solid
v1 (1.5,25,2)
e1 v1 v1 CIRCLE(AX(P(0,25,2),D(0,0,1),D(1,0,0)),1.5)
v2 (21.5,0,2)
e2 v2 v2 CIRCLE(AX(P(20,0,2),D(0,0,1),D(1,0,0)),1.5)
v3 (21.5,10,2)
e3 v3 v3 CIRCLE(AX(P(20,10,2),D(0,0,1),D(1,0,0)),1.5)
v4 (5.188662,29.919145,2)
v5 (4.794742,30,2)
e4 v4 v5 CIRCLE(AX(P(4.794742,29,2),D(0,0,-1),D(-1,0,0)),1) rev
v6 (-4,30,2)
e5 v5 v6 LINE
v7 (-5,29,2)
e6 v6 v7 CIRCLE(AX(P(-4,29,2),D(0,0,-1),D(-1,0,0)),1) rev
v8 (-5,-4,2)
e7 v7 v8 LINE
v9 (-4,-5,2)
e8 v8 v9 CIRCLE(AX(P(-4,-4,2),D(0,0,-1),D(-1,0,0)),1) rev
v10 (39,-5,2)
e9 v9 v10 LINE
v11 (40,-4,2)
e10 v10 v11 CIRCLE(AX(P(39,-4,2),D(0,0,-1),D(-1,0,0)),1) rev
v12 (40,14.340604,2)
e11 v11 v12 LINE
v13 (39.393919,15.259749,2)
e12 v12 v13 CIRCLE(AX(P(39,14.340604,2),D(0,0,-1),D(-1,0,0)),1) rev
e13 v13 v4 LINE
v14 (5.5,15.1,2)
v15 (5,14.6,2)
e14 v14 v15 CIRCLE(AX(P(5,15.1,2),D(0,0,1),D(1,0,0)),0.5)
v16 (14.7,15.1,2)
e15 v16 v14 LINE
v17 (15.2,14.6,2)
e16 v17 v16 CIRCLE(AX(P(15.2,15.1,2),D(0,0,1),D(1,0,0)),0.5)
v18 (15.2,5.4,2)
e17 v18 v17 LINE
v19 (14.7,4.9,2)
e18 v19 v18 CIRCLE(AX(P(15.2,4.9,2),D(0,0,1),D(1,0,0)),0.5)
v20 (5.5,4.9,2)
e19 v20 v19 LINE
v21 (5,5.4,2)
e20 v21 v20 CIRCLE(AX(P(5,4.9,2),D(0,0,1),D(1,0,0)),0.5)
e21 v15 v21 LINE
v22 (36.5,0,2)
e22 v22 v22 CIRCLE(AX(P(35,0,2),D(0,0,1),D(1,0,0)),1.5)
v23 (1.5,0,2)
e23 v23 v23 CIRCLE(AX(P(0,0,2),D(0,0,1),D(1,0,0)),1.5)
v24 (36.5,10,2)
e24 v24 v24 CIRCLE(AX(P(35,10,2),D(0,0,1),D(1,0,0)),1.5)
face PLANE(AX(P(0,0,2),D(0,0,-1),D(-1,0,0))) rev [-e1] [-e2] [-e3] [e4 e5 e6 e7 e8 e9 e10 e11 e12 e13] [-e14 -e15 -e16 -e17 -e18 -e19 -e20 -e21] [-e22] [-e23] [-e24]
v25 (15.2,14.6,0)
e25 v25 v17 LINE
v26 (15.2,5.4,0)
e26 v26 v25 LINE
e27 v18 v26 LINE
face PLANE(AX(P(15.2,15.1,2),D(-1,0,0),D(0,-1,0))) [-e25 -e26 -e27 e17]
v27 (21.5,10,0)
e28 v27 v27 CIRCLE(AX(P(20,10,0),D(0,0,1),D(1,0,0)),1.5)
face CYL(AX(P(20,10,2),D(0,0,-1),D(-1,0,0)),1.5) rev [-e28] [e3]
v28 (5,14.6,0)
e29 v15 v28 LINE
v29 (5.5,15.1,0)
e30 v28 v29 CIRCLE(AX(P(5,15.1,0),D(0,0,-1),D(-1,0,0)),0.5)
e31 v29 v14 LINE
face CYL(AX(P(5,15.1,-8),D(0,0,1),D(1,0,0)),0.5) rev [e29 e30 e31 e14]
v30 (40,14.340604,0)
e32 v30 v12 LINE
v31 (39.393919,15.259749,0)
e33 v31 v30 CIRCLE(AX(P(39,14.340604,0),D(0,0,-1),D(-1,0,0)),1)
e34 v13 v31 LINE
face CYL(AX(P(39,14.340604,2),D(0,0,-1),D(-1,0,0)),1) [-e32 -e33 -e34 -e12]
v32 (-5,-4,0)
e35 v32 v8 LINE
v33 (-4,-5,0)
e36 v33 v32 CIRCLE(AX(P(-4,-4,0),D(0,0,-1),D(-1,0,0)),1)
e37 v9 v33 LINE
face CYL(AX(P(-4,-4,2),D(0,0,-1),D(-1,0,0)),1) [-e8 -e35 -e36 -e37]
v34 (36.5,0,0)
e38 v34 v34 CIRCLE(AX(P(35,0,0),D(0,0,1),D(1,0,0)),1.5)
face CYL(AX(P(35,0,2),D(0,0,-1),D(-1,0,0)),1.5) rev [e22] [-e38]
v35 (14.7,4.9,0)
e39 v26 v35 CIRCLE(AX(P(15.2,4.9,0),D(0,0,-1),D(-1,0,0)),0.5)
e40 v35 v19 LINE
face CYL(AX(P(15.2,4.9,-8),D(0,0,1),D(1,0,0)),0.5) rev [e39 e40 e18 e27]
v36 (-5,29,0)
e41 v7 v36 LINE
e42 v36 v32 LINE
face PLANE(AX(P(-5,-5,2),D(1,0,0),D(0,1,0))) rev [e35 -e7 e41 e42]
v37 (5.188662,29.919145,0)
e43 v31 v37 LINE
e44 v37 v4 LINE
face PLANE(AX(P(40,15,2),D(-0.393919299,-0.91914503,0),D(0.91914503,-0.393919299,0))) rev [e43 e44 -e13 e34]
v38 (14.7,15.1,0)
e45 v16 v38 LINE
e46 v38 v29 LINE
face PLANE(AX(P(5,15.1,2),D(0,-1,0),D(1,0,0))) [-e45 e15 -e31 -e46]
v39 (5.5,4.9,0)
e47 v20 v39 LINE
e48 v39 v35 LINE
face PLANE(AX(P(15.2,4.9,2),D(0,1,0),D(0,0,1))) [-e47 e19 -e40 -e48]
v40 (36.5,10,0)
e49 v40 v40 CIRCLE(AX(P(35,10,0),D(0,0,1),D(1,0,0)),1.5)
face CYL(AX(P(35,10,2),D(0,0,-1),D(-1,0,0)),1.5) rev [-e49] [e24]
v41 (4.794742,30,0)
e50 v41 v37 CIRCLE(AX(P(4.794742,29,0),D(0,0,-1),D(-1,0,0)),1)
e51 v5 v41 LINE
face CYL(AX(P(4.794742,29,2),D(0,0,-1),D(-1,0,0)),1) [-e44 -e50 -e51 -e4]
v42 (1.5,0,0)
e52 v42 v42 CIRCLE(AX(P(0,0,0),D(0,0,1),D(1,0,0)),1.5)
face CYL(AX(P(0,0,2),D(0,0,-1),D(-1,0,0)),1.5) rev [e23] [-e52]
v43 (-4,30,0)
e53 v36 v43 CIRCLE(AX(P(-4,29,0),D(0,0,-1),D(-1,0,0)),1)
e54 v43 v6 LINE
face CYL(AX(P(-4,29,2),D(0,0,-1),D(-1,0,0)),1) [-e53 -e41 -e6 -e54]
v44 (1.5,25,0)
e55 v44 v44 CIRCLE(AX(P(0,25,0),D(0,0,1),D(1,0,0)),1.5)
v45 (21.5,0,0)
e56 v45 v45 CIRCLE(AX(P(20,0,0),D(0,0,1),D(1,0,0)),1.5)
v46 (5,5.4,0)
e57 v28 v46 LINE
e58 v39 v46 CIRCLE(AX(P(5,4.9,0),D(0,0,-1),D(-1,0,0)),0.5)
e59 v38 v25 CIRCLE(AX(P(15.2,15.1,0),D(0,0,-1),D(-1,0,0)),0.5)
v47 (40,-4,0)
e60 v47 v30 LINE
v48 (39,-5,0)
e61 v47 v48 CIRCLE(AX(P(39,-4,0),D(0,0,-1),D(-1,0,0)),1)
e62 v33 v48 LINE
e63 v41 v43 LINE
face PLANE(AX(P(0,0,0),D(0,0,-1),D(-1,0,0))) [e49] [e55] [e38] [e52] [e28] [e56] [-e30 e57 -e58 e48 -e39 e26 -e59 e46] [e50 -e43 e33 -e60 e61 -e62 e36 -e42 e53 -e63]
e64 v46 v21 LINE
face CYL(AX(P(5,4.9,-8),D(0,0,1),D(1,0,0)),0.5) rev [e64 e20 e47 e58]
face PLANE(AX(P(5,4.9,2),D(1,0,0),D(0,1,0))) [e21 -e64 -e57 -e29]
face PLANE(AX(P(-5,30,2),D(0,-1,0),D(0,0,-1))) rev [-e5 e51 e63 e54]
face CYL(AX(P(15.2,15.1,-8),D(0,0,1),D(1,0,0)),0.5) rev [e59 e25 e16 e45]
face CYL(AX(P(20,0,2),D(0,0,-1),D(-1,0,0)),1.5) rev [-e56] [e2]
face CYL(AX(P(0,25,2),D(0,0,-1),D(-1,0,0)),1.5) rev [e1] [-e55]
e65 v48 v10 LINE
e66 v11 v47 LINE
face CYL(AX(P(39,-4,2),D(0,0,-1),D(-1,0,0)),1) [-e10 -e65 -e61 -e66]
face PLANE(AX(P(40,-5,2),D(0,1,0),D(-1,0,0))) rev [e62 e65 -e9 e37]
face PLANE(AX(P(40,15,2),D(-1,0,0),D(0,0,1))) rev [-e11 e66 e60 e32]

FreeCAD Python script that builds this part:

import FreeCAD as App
import Part
import Sketcher
from FreeCAD import Vector


def edges_at(feature, points):
    """Names of the edges that pass closest to the given points."""
    edges = feature.Shape.Edges
    near = lambda p: min(range(len(edges)), key=lambda i: edges[i].distToShape(Part.Vertex(*p))[0])
    return sorted({f"Edge{near(p) + 1}" for p in points})

doc = App.newDocument("Part")
params = doc.addObject("Spreadsheet::Sheet", "Params")
for row, (alias, value) in enumerate([
    ("sketch1_diameter", "3 mm"),
    ("sketch1_width", "10 mm"),
    ("sketch1_width2", "45 mm"),
    ("sketch1_height", "35 mm"),
    ("sketch1_height2", "20 mm"),
    ("pad1_length", "2 mm"),
    ("sketch2_diameter", "1 mm"),
    ("pocket1_length", "10 mm"),
    ("fillet_radius", "1 mm"),
], start=1):
    params.set(f"A{row}", alias)
    params.set(f"B{row}", "=" + value)
    params.setAlias(f"B{row}", alias)

body = doc.addObject("PartDesign::Body", "Body")

# Sketch on XY plane
sketch1 = body.newObject("Sketcher::SketchObject", "Sketch")
sketch1.AttachmentSupport = (doc.getObject("XY_Plane"), [""])
sketch1.MapMode = "FlatFace"
sketch1.addGeometry(Part.LineSegment(Vector(5, 30, 0), Vector(-5, 30, 0)), False)
sketch1.addGeometry(Part.LineSegment(Vector(-5, 30, 0), Vector(-5, -5, 0)), False)
sketch1.addGeometry(Part.LineSegment(Vector(-5, -5, 0), Vector(40, -5, 0)), False)
sketch1.addGeometry(Part.LineSegment(Vector(40, -5, 0), Vector(40, 15, 0)), False)
sketch1.addGeometry(Part.LineSegment(Vector(40, 15, 0), Vector(5, 30, 0)), False)
sketch1.addGeometry(Part.Circle(Vector(0, 0, 0), Vector(0, 0, 1), 1.5), False)
sketch1.addGeometry(Part.LineSegment(Vector(15.2, 4.9, 0), Vector(5, 4.9, 0)), False)
sketch1.addGeometry(Part.LineSegment(Vector(5, 4.9, 0), Vector(5, 15.1, 0)), False)
sketch1.addGeometry(Part.LineSegment(Vector(5, 15.1, 0), Vector(15.2, 15.1, 0)), False)
sketch1.addGeometry(Part.LineSegment(Vector(15.2, 15.1, 0), Vector(15.2, 4.9, 0)), False)
sketch1.addGeometry(Part.Circle(Vector(20, 0, 0), Vector(0, 0, 1), 1.5), False)
sketch1.addGeometry(Part.Circle(Vector(35, 0, 0), Vector(0, 0, 1), 1.5), False)
sketch1.addGeometry(Part.Circle(Vector(20, 10, 0), Vector(0, 0, 1), 1.5), False)
sketch1.addGeometry(Part.Circle(Vector(35, 10, 0), Vector(0, 0, 1), 1.5), False)
sketch1.addGeometry(Part.Circle(Vector(0, 25, 0), Vector(0, 0, 1), 1.5), False)
sketch1.addConstraint(Sketcher.Constraint("Coincident", 0, 2, 1, 1))
sketch1.addConstraint(Sketcher.Constraint("Coincident", 1, 2, 2, 1))
sketch1.addConstraint(Sketcher.Constraint("Coincident", 2, 2, 3, 1))
sketch1.addConstraint(Sketcher.Constraint("Coincident", 3, 2, 4, 1))
sketch1.addConstraint(Sketcher.Constraint("Coincident", 4, 2, 0, 1))
sketch1.addConstraint(Sketcher.Constraint("Coincident", 6, 2, 7, 1))
sketch1.addConstraint(Sketcher.Constraint("Coincident", 7, 2, 8, 1))
sketch1.addConstraint(Sketcher.Constraint("Coincident", 8, 2, 9, 1))
sketch1.addConstraint(Sketcher.Constraint("Coincident", 9, 2, 6, 1))
sketch1.addConstraint(Sketcher.Constraint("Horizontal", 0))
sketch1.addConstraint(Sketcher.Constraint("Vertical", 1))
sketch1.addConstraint(Sketcher.Constraint("Horizontal", 2))
sketch1.addConstraint(Sketcher.Constraint("Vertical", 3))
sketch1.addConstraint(Sketcher.Constraint("Horizontal", 6))
sketch1.addConstraint(Sketcher.Constraint("Vertical", 7))
sketch1.addConstraint(Sketcher.Constraint("Horizontal", 8))
sketch1.addConstraint(Sketcher.Constraint("Vertical", 9))
sketch1.addConstraint(Sketcher.Constraint("Coincident", 5, 3, -1, 1))
sketch1.addConstraint(Sketcher.Constraint("Equal", 5, 10))
sketch1.addConstraint(Sketcher.Constraint("Equal", 10, 11))
sketch1.addConstraint(Sketcher.Constraint("Equal", 11, 12))
sketch1.addConstraint(Sketcher.Constraint("Equal", 12, 13))
sketch1.addConstraint(Sketcher.Constraint("Equal", 13, 14))
sketch1.addConstraint(Sketcher.Constraint("PointOnObject", 10, 3, -1))
sketch1.addConstraint(Sketcher.Constraint("PointOnObject", 11, 3, -1))
sketch1.addConstraint(Sketcher.Constraint("PointOnObject", 14, 3, -2))
sketch1.addConstraint(Sketcher.Constraint("Horizontal", 12, 3, 13, 3))
sketch1.addConstraint(Sketcher.Constraint("Vertical", 10, 3, 12, 3))
sketch1.addConstraint(Sketcher.Constraint("Vertical", 11, 3, 13, 3))
sketch1.addConstraint(Sketcher.Constraint("Vertical", 4, 2, 6, 2))
sketch1.addConstraint(Sketcher.Constraint("Equal", 8, 7))
sketch1.addConstraint(Sketcher.Constraint("Diameter", 5, 3.0))
sketch1.addConstraint(Sketcher.Constraint("DistanceX", 0, 2, 0, 1, 10.0))
sketch1.addConstraint(Sketcher.Constraint("DistanceX", 2, 1, 2, 2, 45.0))
sketch1.addConstraint(Sketcher.Constraint("DistanceY", 1, 2, 1, 1, 35.0))
sketch1.addConstraint(Sketcher.Constraint("DistanceY", 3, 1, 3, 2, 20.0))
sketch1.addConstraint(Sketcher.Constraint("DistanceX", 6, 2, 6, 1, 10.2))
sketch1.addConstraint(Sketcher.Constraint("DistanceX", -1, 1, 10, 3, 20.0))
sketch1.addConstraint(Sketcher.Constraint("DistanceX", -1, 1, 11, 3, 35.0))
sketch1.addConstraint(Sketcher.Constraint("DistanceY", -1, 1, 12, 3, 10.0))
sketch1.addConstraint(Sketcher.Constraint("DistanceY", -1, 1, 14, 3, 25.0))
sketch1.addConstraint(Sketcher.Constraint("DistanceX", 0, 2, -1, 1, 5.0))
sketch1.addConstraint(Sketcher.Constraint("DistanceY", -1, 1, 0, 2, 30.0))
sketch1.addConstraint(Sketcher.Constraint("DistanceY", -1, 1, 6, 2, 4.9))
sketch1.setExpression("Constraints[31]", "Params.sketch1_diameter")
sketch1.setExpression("Constraints[32]", "Params.sketch1_width")
sketch1.setExpression("Constraints[33]", "Params.sketch1_width2")
sketch1.setExpression("Constraints[34]", "Params.sketch1_height")
sketch1.setExpression("Constraints[35]", "Params.sketch1_height2")
pad1 = body.newObject("PartDesign::Pad", "Pad")
pad1.Profile = sketch1
pad1.setExpression("Length", "Params.pad1_length")

# Sketch on XY plane
sketch2 = body.newObject("Sketcher::SketchObject", "Sketch001")
sketch2.AttachmentSupport = (doc.getObject("XY_Plane"), [""])
sketch2.MapMode = "FlatFace"
sketch2.AttachmentOffset = App.Placement(Vector(0, 0, 2), App.Rotation())
sketch2.addGeometry(Part.Circle(Vector(15.2, 15.1, 0), Vector(0, 0, 1), 0.5), False)
sketch2.addGeometry(Part.Circle(Vector(15.2, 4.9, 0), Vector(0, 0, 1), 0.5), False)
sketch2.addGeometry(Part.Circle(Vector(5, 15.1, 0), Vector(0, 0, 1), 0.5), False)
sketch2.addGeometry(Part.Circle(Vector(5, 4.9, 0), Vector(0, 0, 1), 0.5), False)
sketch2.addConstraint(Sketcher.Constraint("Equal", 0, 1))
sketch2.addConstraint(Sketcher.Constraint("Equal", 1, 2))
sketch2.addConstraint(Sketcher.Constraint("Equal", 2, 3))
sketch2.addConstraint(Sketcher.Constraint("Horizontal", 0, 3, 2, 3))
sketch2.addConstraint(Sketcher.Constraint("Horizontal", 1, 3, 3, 3))
sketch2.addConstraint(Sketcher.Constraint("Vertical", 0, 3, 1, 3))
sketch2.addConstraint(Sketcher.Constraint("Vertical", 2, 3, 3, 3))
sketch2.addConstraint(Sketcher.Constraint("Diameter", 0, 1.0))
sketch2.addConstraint(Sketcher.Constraint("DistanceX", -1, 1, 2, 3, 5.0))
sketch2.addConstraint(Sketcher.Constraint("DistanceX", -1, 1, 0, 3, 15.2))
sketch2.addConstraint(Sketcher.Constraint("DistanceY", -1, 1, 0, 3, 15.1))
sketch2.addConstraint(Sketcher.Constraint("DistanceY", -1, 1, 1, 3, 4.9))
sketch2.setExpression("Constraints[7]", "Params.sketch2_diameter")
pocket1 = body.newObject("PartDesign::Pocket", "Pocket")
pocket1.Profile = sketch2
pocket1.setExpression("Length", "Params.pocket1_length")
doc.recompute()

fillet = body.newObject("PartDesign::Fillet", "Fillet")
fillet.Base = (pocket1, edges_at(pocket1, [
    (-5, 30, 1),
    (5, 30, 1),
    (40, 15, 1),
    (40, -5, 1),
    (-5, -5, 1),
]))
fillet.setExpression("Radius", "Params.fillet_radius")

doc.recompute()
